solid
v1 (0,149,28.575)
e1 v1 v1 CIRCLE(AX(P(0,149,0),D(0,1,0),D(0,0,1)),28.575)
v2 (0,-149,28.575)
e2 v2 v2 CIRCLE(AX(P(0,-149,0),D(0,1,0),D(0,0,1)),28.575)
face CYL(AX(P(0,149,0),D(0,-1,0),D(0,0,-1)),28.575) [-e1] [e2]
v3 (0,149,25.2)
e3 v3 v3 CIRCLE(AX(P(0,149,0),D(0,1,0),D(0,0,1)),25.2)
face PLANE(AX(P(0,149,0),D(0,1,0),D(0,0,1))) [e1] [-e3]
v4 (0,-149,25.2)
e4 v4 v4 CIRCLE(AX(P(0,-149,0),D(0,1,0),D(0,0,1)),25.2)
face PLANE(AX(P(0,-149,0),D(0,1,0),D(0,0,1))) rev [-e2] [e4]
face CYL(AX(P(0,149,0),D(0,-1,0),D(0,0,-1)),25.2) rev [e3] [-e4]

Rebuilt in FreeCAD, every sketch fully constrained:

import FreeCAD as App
import Part
import Sketcher

doc = App.newDocument("Part")
body = doc.addObject("PartDesign::Body", "Body")

# Sketch on XZ plane
sketch1 = doc.addObject("Sketcher::SketchObject", "Sketch")
body.addObject(sketch1)
sketch1.AttachmentSupport = (doc.XZ_Plane, [""])
sketch1.MapMode = "FlatFace"
sketch1.addGeometry(Part.Circle(App.Vector(0, 0, 0), App.Vector(0, 0, 1), 28.575), False)
sketch1.addGeometry(Part.Circle(App.Vector(0, 0, 0), App.Vector(0, 0, 1), 25.2), False)
sketch1.addConstraint(Sketcher.Constraint("Coincident", 0, 3, -1, 1))
sketch1.addConstraint(Sketcher.Constraint("Coincident", 1, 3, -1, 1))
sketch1.addConstraint(Sketcher.Constraint("Diameter", 1, 50.4))
sketch1.addConstraint(Sketcher.Constraint("Diameter", 0, 57.15))
pad1 = doc.addObject("PartDesign::Pad", "Pad")
body.addObject(pad1)
pad1.Profile = sketch1
pad1.Length = 298
pad1.Midplane = True

doc.recompute()
